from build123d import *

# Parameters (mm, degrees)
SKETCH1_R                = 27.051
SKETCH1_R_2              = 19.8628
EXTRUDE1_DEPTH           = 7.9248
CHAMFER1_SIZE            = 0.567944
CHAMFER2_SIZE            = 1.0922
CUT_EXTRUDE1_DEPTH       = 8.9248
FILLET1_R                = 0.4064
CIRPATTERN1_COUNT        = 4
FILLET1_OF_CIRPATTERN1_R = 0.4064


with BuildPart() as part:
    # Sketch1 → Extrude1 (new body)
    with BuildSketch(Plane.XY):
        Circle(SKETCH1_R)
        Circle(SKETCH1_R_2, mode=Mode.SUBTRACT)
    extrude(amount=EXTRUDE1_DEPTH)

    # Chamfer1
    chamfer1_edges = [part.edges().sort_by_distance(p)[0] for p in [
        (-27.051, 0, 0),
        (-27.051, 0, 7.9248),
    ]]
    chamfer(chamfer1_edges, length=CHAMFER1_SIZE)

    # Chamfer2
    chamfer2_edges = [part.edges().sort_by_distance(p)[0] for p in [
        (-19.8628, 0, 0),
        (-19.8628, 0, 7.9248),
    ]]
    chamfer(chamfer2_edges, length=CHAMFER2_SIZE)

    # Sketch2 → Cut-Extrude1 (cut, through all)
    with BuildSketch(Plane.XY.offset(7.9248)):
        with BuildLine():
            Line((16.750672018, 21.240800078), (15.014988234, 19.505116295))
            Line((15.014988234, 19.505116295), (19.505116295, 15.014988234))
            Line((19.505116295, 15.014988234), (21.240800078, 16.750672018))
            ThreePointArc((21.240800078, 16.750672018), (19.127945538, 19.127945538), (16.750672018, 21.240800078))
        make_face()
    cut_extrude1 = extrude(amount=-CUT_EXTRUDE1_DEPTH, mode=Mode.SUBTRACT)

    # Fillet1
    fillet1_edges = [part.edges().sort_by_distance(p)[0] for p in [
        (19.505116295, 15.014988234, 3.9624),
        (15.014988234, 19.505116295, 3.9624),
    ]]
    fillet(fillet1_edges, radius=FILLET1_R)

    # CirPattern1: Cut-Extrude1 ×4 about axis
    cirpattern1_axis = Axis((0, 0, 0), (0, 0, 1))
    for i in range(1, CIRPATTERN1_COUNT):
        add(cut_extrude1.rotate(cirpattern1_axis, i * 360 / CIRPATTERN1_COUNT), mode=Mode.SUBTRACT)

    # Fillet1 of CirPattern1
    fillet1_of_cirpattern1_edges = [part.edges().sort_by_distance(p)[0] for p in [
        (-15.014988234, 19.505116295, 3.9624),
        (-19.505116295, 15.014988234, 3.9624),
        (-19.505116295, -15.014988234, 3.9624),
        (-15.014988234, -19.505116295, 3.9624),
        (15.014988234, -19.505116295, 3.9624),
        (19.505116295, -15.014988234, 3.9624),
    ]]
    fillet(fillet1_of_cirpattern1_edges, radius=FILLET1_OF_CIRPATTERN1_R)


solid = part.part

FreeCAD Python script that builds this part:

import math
import FreeCAD as App
import Part
import Sketcher
from FreeCAD import Vector
Q = App.Units.Quantity


def edges_at(feature, points):
    """Names of the edges that pass closest to the given points."""
    edges = feature.Shape.Edges
    near = lambda p: min(range(len(edges)), key=lambda i: edges[i].distToShape(Part.Vertex(*p))[0])
    return sorted({f"Edge{near(p) + 1}" for p in points})

doc = App.newDocument("Part")
body = doc.addObject("PartDesign::Body", "Body")

# Sketch on XY plane
sketch1 = body.newObject("Sketcher::SketchObject", "Sketch")
sketch1.AttachmentSupport = (doc.getObject("XY_Plane"), [""])
sketch1.MapMode = "FlatFace"
sketch1.addGeometry(Part.Circle(Vector(0, 0, 0), Vector(0, 0, 1), 27.051), False)
sketch1.addGeometry(Part.Circle(Vector(0, 0, 0), Vector(0, 0, 1), 19.8628), False)
sketch1.addConstraint(Sketcher.Constraint("Coincident", 0, 3, -1, 1))
sketch1.addConstraint(Sketcher.Constraint("Coincident", 1, 3, -1, 1))
sketch1.addConstraint(Sketcher.Constraint("Diameter", 0, Q("2.13 in")))
sketch1.addConstraint(Sketcher.Constraint("Diameter", 1, Q("1.564 in")))
pad1 = body.newObject("PartDesign::Pad", "Pad")
pad1.Profile = sketch1
pad1.Length = Q("0.312 in")
doc.recompute()

chamfer = body.newObject("PartDesign::Chamfer", "Chamfer")
chamfer.Base = (pad1, edges_at(pad1, [(-27.051, 0, 0), (-27.051, 0, 7.925)]))
chamfer.Size = 0.567944
doc.recompute()

chamfer2 = body.newObject("PartDesign::Chamfer", "Chamfer001")
chamfer2.Base = (chamfer, edges_at(chamfer, [(-19.863, 0, 0), (-19.863, 0, 7.925)]))
chamfer2.Size = Q("0.043 in")

# Sketch on XY plane
sketch2 = body.newObject("Sketcher::SketchObject", "Sketch001")
sketch2.AttachmentSupport = (doc.getObject("XY_Plane"), [""])
sketch2.MapMode = "FlatFace"
sketch2.AttachmentOffset = App.Placement(Vector(0, 0, 0.312 * 25.4), App.Rotation())
sketch2.addGeometry(Part.LineSegment(Vector(16.750672, 21.2408, 0), Vector(15.014988, 19.505116, 0)), False)
sketch2.addGeometry(Part.LineSegment(Vector(15.014988, 19.505116, 0), Vector(19.505116, 15.014988, 0)), False)
sketch2.addGeometry(Part.LineSegment(Vector(19.505116, 15.014988, 0), Vector(21.2408, 16.750672, 0)), False)
sketch2.addGeometry(Part.ArcOfCircle(Part.Circle(Vector(0, 0, 0), Vector(0, 0, 1), 27.051), math.radians(38.259607), math.radians(51.740393)), False)
sketch2.addConstraint(Sketcher.Constraint("Coincident", 0, 2, 1, 1))
sketch2.addConstraint(Sketcher.Constraint("Coincident", 1, 2, 2, 1))
sketch2.addConstraint(Sketcher.Constraint("Coincident", 2, 2, 3, 1))
sketch2.addConstraint(Sketcher.Constraint("Coincident", 3, 2, 0, 1))
sketch2.addConstraint(Sketcher.Constraint("Coincident", 3, 3, -1, 1))
sketch2.addConstraint(Sketcher.Constraint("Perpendicular", 0, 1))
sketch2.addConstraint(Sketcher.Constraint("Perpendicular", 1, 2))
sketch2.addConstraint(Sketcher.Constraint("Equal", 0, 2))
sketch2.addConstraint(Sketcher.Constraint("Angle", 0, Q("-135 deg")))
sketch2.addConstraint(Sketcher.Constraint("Radius", 3, Q("1.065 in")))
sketch2.addConstraint(Sketcher.Constraint("Distance", 1, Q("0.25 in")))
sketch2.addConstraint(Sketcher.Constraint("DistanceX", -1, 1, 0, 2, Q("15.014988 mm")))
pocket1 = body.newObject("PartDesign::Pocket", "Pocket")
pocket1.Profile = sketch2
pocket1.Type = "ThroughAll"
doc.recompute()

fillet = body.newObject("PartDesign::Fillet", "Fillet")
fillet.Base = (pocket1, edges_at(pocket1, [(19.505, 15.015, 3.962), (15.015, 19.505, 3.962)]))
fillet.Radius = Q("0.016 in")
doc.recompute()

polarpattern = body.newObject("PartDesign::PolarPattern", "PolarPattern")
polarpattern.Originals = [pocket1]
polarpattern.Axis = (doc.getObject("Z_Axis"), [""])
polarpattern.Angle = 360
polarpattern.Occurrences = 4
body.Tip = polarpattern
doc.recompute()

fillet2 = body.newObject("PartDesign::Fillet", "Fillet001")
fillet2.Base = (polarpattern, edges_at(polarpattern, [
    (-15.015, 19.505, 3.962),
    (-19.505, 15.015, 3.962),
    (-19.505, -15.015, 3.962),
    (-15.015, -19.505, 3.962),
    (15.015, -19.505, 3.962),
    (19.505, -15.015, 3.962),
]))
fillet2.Radius = Q("0.016 in")

doc.recompute()
